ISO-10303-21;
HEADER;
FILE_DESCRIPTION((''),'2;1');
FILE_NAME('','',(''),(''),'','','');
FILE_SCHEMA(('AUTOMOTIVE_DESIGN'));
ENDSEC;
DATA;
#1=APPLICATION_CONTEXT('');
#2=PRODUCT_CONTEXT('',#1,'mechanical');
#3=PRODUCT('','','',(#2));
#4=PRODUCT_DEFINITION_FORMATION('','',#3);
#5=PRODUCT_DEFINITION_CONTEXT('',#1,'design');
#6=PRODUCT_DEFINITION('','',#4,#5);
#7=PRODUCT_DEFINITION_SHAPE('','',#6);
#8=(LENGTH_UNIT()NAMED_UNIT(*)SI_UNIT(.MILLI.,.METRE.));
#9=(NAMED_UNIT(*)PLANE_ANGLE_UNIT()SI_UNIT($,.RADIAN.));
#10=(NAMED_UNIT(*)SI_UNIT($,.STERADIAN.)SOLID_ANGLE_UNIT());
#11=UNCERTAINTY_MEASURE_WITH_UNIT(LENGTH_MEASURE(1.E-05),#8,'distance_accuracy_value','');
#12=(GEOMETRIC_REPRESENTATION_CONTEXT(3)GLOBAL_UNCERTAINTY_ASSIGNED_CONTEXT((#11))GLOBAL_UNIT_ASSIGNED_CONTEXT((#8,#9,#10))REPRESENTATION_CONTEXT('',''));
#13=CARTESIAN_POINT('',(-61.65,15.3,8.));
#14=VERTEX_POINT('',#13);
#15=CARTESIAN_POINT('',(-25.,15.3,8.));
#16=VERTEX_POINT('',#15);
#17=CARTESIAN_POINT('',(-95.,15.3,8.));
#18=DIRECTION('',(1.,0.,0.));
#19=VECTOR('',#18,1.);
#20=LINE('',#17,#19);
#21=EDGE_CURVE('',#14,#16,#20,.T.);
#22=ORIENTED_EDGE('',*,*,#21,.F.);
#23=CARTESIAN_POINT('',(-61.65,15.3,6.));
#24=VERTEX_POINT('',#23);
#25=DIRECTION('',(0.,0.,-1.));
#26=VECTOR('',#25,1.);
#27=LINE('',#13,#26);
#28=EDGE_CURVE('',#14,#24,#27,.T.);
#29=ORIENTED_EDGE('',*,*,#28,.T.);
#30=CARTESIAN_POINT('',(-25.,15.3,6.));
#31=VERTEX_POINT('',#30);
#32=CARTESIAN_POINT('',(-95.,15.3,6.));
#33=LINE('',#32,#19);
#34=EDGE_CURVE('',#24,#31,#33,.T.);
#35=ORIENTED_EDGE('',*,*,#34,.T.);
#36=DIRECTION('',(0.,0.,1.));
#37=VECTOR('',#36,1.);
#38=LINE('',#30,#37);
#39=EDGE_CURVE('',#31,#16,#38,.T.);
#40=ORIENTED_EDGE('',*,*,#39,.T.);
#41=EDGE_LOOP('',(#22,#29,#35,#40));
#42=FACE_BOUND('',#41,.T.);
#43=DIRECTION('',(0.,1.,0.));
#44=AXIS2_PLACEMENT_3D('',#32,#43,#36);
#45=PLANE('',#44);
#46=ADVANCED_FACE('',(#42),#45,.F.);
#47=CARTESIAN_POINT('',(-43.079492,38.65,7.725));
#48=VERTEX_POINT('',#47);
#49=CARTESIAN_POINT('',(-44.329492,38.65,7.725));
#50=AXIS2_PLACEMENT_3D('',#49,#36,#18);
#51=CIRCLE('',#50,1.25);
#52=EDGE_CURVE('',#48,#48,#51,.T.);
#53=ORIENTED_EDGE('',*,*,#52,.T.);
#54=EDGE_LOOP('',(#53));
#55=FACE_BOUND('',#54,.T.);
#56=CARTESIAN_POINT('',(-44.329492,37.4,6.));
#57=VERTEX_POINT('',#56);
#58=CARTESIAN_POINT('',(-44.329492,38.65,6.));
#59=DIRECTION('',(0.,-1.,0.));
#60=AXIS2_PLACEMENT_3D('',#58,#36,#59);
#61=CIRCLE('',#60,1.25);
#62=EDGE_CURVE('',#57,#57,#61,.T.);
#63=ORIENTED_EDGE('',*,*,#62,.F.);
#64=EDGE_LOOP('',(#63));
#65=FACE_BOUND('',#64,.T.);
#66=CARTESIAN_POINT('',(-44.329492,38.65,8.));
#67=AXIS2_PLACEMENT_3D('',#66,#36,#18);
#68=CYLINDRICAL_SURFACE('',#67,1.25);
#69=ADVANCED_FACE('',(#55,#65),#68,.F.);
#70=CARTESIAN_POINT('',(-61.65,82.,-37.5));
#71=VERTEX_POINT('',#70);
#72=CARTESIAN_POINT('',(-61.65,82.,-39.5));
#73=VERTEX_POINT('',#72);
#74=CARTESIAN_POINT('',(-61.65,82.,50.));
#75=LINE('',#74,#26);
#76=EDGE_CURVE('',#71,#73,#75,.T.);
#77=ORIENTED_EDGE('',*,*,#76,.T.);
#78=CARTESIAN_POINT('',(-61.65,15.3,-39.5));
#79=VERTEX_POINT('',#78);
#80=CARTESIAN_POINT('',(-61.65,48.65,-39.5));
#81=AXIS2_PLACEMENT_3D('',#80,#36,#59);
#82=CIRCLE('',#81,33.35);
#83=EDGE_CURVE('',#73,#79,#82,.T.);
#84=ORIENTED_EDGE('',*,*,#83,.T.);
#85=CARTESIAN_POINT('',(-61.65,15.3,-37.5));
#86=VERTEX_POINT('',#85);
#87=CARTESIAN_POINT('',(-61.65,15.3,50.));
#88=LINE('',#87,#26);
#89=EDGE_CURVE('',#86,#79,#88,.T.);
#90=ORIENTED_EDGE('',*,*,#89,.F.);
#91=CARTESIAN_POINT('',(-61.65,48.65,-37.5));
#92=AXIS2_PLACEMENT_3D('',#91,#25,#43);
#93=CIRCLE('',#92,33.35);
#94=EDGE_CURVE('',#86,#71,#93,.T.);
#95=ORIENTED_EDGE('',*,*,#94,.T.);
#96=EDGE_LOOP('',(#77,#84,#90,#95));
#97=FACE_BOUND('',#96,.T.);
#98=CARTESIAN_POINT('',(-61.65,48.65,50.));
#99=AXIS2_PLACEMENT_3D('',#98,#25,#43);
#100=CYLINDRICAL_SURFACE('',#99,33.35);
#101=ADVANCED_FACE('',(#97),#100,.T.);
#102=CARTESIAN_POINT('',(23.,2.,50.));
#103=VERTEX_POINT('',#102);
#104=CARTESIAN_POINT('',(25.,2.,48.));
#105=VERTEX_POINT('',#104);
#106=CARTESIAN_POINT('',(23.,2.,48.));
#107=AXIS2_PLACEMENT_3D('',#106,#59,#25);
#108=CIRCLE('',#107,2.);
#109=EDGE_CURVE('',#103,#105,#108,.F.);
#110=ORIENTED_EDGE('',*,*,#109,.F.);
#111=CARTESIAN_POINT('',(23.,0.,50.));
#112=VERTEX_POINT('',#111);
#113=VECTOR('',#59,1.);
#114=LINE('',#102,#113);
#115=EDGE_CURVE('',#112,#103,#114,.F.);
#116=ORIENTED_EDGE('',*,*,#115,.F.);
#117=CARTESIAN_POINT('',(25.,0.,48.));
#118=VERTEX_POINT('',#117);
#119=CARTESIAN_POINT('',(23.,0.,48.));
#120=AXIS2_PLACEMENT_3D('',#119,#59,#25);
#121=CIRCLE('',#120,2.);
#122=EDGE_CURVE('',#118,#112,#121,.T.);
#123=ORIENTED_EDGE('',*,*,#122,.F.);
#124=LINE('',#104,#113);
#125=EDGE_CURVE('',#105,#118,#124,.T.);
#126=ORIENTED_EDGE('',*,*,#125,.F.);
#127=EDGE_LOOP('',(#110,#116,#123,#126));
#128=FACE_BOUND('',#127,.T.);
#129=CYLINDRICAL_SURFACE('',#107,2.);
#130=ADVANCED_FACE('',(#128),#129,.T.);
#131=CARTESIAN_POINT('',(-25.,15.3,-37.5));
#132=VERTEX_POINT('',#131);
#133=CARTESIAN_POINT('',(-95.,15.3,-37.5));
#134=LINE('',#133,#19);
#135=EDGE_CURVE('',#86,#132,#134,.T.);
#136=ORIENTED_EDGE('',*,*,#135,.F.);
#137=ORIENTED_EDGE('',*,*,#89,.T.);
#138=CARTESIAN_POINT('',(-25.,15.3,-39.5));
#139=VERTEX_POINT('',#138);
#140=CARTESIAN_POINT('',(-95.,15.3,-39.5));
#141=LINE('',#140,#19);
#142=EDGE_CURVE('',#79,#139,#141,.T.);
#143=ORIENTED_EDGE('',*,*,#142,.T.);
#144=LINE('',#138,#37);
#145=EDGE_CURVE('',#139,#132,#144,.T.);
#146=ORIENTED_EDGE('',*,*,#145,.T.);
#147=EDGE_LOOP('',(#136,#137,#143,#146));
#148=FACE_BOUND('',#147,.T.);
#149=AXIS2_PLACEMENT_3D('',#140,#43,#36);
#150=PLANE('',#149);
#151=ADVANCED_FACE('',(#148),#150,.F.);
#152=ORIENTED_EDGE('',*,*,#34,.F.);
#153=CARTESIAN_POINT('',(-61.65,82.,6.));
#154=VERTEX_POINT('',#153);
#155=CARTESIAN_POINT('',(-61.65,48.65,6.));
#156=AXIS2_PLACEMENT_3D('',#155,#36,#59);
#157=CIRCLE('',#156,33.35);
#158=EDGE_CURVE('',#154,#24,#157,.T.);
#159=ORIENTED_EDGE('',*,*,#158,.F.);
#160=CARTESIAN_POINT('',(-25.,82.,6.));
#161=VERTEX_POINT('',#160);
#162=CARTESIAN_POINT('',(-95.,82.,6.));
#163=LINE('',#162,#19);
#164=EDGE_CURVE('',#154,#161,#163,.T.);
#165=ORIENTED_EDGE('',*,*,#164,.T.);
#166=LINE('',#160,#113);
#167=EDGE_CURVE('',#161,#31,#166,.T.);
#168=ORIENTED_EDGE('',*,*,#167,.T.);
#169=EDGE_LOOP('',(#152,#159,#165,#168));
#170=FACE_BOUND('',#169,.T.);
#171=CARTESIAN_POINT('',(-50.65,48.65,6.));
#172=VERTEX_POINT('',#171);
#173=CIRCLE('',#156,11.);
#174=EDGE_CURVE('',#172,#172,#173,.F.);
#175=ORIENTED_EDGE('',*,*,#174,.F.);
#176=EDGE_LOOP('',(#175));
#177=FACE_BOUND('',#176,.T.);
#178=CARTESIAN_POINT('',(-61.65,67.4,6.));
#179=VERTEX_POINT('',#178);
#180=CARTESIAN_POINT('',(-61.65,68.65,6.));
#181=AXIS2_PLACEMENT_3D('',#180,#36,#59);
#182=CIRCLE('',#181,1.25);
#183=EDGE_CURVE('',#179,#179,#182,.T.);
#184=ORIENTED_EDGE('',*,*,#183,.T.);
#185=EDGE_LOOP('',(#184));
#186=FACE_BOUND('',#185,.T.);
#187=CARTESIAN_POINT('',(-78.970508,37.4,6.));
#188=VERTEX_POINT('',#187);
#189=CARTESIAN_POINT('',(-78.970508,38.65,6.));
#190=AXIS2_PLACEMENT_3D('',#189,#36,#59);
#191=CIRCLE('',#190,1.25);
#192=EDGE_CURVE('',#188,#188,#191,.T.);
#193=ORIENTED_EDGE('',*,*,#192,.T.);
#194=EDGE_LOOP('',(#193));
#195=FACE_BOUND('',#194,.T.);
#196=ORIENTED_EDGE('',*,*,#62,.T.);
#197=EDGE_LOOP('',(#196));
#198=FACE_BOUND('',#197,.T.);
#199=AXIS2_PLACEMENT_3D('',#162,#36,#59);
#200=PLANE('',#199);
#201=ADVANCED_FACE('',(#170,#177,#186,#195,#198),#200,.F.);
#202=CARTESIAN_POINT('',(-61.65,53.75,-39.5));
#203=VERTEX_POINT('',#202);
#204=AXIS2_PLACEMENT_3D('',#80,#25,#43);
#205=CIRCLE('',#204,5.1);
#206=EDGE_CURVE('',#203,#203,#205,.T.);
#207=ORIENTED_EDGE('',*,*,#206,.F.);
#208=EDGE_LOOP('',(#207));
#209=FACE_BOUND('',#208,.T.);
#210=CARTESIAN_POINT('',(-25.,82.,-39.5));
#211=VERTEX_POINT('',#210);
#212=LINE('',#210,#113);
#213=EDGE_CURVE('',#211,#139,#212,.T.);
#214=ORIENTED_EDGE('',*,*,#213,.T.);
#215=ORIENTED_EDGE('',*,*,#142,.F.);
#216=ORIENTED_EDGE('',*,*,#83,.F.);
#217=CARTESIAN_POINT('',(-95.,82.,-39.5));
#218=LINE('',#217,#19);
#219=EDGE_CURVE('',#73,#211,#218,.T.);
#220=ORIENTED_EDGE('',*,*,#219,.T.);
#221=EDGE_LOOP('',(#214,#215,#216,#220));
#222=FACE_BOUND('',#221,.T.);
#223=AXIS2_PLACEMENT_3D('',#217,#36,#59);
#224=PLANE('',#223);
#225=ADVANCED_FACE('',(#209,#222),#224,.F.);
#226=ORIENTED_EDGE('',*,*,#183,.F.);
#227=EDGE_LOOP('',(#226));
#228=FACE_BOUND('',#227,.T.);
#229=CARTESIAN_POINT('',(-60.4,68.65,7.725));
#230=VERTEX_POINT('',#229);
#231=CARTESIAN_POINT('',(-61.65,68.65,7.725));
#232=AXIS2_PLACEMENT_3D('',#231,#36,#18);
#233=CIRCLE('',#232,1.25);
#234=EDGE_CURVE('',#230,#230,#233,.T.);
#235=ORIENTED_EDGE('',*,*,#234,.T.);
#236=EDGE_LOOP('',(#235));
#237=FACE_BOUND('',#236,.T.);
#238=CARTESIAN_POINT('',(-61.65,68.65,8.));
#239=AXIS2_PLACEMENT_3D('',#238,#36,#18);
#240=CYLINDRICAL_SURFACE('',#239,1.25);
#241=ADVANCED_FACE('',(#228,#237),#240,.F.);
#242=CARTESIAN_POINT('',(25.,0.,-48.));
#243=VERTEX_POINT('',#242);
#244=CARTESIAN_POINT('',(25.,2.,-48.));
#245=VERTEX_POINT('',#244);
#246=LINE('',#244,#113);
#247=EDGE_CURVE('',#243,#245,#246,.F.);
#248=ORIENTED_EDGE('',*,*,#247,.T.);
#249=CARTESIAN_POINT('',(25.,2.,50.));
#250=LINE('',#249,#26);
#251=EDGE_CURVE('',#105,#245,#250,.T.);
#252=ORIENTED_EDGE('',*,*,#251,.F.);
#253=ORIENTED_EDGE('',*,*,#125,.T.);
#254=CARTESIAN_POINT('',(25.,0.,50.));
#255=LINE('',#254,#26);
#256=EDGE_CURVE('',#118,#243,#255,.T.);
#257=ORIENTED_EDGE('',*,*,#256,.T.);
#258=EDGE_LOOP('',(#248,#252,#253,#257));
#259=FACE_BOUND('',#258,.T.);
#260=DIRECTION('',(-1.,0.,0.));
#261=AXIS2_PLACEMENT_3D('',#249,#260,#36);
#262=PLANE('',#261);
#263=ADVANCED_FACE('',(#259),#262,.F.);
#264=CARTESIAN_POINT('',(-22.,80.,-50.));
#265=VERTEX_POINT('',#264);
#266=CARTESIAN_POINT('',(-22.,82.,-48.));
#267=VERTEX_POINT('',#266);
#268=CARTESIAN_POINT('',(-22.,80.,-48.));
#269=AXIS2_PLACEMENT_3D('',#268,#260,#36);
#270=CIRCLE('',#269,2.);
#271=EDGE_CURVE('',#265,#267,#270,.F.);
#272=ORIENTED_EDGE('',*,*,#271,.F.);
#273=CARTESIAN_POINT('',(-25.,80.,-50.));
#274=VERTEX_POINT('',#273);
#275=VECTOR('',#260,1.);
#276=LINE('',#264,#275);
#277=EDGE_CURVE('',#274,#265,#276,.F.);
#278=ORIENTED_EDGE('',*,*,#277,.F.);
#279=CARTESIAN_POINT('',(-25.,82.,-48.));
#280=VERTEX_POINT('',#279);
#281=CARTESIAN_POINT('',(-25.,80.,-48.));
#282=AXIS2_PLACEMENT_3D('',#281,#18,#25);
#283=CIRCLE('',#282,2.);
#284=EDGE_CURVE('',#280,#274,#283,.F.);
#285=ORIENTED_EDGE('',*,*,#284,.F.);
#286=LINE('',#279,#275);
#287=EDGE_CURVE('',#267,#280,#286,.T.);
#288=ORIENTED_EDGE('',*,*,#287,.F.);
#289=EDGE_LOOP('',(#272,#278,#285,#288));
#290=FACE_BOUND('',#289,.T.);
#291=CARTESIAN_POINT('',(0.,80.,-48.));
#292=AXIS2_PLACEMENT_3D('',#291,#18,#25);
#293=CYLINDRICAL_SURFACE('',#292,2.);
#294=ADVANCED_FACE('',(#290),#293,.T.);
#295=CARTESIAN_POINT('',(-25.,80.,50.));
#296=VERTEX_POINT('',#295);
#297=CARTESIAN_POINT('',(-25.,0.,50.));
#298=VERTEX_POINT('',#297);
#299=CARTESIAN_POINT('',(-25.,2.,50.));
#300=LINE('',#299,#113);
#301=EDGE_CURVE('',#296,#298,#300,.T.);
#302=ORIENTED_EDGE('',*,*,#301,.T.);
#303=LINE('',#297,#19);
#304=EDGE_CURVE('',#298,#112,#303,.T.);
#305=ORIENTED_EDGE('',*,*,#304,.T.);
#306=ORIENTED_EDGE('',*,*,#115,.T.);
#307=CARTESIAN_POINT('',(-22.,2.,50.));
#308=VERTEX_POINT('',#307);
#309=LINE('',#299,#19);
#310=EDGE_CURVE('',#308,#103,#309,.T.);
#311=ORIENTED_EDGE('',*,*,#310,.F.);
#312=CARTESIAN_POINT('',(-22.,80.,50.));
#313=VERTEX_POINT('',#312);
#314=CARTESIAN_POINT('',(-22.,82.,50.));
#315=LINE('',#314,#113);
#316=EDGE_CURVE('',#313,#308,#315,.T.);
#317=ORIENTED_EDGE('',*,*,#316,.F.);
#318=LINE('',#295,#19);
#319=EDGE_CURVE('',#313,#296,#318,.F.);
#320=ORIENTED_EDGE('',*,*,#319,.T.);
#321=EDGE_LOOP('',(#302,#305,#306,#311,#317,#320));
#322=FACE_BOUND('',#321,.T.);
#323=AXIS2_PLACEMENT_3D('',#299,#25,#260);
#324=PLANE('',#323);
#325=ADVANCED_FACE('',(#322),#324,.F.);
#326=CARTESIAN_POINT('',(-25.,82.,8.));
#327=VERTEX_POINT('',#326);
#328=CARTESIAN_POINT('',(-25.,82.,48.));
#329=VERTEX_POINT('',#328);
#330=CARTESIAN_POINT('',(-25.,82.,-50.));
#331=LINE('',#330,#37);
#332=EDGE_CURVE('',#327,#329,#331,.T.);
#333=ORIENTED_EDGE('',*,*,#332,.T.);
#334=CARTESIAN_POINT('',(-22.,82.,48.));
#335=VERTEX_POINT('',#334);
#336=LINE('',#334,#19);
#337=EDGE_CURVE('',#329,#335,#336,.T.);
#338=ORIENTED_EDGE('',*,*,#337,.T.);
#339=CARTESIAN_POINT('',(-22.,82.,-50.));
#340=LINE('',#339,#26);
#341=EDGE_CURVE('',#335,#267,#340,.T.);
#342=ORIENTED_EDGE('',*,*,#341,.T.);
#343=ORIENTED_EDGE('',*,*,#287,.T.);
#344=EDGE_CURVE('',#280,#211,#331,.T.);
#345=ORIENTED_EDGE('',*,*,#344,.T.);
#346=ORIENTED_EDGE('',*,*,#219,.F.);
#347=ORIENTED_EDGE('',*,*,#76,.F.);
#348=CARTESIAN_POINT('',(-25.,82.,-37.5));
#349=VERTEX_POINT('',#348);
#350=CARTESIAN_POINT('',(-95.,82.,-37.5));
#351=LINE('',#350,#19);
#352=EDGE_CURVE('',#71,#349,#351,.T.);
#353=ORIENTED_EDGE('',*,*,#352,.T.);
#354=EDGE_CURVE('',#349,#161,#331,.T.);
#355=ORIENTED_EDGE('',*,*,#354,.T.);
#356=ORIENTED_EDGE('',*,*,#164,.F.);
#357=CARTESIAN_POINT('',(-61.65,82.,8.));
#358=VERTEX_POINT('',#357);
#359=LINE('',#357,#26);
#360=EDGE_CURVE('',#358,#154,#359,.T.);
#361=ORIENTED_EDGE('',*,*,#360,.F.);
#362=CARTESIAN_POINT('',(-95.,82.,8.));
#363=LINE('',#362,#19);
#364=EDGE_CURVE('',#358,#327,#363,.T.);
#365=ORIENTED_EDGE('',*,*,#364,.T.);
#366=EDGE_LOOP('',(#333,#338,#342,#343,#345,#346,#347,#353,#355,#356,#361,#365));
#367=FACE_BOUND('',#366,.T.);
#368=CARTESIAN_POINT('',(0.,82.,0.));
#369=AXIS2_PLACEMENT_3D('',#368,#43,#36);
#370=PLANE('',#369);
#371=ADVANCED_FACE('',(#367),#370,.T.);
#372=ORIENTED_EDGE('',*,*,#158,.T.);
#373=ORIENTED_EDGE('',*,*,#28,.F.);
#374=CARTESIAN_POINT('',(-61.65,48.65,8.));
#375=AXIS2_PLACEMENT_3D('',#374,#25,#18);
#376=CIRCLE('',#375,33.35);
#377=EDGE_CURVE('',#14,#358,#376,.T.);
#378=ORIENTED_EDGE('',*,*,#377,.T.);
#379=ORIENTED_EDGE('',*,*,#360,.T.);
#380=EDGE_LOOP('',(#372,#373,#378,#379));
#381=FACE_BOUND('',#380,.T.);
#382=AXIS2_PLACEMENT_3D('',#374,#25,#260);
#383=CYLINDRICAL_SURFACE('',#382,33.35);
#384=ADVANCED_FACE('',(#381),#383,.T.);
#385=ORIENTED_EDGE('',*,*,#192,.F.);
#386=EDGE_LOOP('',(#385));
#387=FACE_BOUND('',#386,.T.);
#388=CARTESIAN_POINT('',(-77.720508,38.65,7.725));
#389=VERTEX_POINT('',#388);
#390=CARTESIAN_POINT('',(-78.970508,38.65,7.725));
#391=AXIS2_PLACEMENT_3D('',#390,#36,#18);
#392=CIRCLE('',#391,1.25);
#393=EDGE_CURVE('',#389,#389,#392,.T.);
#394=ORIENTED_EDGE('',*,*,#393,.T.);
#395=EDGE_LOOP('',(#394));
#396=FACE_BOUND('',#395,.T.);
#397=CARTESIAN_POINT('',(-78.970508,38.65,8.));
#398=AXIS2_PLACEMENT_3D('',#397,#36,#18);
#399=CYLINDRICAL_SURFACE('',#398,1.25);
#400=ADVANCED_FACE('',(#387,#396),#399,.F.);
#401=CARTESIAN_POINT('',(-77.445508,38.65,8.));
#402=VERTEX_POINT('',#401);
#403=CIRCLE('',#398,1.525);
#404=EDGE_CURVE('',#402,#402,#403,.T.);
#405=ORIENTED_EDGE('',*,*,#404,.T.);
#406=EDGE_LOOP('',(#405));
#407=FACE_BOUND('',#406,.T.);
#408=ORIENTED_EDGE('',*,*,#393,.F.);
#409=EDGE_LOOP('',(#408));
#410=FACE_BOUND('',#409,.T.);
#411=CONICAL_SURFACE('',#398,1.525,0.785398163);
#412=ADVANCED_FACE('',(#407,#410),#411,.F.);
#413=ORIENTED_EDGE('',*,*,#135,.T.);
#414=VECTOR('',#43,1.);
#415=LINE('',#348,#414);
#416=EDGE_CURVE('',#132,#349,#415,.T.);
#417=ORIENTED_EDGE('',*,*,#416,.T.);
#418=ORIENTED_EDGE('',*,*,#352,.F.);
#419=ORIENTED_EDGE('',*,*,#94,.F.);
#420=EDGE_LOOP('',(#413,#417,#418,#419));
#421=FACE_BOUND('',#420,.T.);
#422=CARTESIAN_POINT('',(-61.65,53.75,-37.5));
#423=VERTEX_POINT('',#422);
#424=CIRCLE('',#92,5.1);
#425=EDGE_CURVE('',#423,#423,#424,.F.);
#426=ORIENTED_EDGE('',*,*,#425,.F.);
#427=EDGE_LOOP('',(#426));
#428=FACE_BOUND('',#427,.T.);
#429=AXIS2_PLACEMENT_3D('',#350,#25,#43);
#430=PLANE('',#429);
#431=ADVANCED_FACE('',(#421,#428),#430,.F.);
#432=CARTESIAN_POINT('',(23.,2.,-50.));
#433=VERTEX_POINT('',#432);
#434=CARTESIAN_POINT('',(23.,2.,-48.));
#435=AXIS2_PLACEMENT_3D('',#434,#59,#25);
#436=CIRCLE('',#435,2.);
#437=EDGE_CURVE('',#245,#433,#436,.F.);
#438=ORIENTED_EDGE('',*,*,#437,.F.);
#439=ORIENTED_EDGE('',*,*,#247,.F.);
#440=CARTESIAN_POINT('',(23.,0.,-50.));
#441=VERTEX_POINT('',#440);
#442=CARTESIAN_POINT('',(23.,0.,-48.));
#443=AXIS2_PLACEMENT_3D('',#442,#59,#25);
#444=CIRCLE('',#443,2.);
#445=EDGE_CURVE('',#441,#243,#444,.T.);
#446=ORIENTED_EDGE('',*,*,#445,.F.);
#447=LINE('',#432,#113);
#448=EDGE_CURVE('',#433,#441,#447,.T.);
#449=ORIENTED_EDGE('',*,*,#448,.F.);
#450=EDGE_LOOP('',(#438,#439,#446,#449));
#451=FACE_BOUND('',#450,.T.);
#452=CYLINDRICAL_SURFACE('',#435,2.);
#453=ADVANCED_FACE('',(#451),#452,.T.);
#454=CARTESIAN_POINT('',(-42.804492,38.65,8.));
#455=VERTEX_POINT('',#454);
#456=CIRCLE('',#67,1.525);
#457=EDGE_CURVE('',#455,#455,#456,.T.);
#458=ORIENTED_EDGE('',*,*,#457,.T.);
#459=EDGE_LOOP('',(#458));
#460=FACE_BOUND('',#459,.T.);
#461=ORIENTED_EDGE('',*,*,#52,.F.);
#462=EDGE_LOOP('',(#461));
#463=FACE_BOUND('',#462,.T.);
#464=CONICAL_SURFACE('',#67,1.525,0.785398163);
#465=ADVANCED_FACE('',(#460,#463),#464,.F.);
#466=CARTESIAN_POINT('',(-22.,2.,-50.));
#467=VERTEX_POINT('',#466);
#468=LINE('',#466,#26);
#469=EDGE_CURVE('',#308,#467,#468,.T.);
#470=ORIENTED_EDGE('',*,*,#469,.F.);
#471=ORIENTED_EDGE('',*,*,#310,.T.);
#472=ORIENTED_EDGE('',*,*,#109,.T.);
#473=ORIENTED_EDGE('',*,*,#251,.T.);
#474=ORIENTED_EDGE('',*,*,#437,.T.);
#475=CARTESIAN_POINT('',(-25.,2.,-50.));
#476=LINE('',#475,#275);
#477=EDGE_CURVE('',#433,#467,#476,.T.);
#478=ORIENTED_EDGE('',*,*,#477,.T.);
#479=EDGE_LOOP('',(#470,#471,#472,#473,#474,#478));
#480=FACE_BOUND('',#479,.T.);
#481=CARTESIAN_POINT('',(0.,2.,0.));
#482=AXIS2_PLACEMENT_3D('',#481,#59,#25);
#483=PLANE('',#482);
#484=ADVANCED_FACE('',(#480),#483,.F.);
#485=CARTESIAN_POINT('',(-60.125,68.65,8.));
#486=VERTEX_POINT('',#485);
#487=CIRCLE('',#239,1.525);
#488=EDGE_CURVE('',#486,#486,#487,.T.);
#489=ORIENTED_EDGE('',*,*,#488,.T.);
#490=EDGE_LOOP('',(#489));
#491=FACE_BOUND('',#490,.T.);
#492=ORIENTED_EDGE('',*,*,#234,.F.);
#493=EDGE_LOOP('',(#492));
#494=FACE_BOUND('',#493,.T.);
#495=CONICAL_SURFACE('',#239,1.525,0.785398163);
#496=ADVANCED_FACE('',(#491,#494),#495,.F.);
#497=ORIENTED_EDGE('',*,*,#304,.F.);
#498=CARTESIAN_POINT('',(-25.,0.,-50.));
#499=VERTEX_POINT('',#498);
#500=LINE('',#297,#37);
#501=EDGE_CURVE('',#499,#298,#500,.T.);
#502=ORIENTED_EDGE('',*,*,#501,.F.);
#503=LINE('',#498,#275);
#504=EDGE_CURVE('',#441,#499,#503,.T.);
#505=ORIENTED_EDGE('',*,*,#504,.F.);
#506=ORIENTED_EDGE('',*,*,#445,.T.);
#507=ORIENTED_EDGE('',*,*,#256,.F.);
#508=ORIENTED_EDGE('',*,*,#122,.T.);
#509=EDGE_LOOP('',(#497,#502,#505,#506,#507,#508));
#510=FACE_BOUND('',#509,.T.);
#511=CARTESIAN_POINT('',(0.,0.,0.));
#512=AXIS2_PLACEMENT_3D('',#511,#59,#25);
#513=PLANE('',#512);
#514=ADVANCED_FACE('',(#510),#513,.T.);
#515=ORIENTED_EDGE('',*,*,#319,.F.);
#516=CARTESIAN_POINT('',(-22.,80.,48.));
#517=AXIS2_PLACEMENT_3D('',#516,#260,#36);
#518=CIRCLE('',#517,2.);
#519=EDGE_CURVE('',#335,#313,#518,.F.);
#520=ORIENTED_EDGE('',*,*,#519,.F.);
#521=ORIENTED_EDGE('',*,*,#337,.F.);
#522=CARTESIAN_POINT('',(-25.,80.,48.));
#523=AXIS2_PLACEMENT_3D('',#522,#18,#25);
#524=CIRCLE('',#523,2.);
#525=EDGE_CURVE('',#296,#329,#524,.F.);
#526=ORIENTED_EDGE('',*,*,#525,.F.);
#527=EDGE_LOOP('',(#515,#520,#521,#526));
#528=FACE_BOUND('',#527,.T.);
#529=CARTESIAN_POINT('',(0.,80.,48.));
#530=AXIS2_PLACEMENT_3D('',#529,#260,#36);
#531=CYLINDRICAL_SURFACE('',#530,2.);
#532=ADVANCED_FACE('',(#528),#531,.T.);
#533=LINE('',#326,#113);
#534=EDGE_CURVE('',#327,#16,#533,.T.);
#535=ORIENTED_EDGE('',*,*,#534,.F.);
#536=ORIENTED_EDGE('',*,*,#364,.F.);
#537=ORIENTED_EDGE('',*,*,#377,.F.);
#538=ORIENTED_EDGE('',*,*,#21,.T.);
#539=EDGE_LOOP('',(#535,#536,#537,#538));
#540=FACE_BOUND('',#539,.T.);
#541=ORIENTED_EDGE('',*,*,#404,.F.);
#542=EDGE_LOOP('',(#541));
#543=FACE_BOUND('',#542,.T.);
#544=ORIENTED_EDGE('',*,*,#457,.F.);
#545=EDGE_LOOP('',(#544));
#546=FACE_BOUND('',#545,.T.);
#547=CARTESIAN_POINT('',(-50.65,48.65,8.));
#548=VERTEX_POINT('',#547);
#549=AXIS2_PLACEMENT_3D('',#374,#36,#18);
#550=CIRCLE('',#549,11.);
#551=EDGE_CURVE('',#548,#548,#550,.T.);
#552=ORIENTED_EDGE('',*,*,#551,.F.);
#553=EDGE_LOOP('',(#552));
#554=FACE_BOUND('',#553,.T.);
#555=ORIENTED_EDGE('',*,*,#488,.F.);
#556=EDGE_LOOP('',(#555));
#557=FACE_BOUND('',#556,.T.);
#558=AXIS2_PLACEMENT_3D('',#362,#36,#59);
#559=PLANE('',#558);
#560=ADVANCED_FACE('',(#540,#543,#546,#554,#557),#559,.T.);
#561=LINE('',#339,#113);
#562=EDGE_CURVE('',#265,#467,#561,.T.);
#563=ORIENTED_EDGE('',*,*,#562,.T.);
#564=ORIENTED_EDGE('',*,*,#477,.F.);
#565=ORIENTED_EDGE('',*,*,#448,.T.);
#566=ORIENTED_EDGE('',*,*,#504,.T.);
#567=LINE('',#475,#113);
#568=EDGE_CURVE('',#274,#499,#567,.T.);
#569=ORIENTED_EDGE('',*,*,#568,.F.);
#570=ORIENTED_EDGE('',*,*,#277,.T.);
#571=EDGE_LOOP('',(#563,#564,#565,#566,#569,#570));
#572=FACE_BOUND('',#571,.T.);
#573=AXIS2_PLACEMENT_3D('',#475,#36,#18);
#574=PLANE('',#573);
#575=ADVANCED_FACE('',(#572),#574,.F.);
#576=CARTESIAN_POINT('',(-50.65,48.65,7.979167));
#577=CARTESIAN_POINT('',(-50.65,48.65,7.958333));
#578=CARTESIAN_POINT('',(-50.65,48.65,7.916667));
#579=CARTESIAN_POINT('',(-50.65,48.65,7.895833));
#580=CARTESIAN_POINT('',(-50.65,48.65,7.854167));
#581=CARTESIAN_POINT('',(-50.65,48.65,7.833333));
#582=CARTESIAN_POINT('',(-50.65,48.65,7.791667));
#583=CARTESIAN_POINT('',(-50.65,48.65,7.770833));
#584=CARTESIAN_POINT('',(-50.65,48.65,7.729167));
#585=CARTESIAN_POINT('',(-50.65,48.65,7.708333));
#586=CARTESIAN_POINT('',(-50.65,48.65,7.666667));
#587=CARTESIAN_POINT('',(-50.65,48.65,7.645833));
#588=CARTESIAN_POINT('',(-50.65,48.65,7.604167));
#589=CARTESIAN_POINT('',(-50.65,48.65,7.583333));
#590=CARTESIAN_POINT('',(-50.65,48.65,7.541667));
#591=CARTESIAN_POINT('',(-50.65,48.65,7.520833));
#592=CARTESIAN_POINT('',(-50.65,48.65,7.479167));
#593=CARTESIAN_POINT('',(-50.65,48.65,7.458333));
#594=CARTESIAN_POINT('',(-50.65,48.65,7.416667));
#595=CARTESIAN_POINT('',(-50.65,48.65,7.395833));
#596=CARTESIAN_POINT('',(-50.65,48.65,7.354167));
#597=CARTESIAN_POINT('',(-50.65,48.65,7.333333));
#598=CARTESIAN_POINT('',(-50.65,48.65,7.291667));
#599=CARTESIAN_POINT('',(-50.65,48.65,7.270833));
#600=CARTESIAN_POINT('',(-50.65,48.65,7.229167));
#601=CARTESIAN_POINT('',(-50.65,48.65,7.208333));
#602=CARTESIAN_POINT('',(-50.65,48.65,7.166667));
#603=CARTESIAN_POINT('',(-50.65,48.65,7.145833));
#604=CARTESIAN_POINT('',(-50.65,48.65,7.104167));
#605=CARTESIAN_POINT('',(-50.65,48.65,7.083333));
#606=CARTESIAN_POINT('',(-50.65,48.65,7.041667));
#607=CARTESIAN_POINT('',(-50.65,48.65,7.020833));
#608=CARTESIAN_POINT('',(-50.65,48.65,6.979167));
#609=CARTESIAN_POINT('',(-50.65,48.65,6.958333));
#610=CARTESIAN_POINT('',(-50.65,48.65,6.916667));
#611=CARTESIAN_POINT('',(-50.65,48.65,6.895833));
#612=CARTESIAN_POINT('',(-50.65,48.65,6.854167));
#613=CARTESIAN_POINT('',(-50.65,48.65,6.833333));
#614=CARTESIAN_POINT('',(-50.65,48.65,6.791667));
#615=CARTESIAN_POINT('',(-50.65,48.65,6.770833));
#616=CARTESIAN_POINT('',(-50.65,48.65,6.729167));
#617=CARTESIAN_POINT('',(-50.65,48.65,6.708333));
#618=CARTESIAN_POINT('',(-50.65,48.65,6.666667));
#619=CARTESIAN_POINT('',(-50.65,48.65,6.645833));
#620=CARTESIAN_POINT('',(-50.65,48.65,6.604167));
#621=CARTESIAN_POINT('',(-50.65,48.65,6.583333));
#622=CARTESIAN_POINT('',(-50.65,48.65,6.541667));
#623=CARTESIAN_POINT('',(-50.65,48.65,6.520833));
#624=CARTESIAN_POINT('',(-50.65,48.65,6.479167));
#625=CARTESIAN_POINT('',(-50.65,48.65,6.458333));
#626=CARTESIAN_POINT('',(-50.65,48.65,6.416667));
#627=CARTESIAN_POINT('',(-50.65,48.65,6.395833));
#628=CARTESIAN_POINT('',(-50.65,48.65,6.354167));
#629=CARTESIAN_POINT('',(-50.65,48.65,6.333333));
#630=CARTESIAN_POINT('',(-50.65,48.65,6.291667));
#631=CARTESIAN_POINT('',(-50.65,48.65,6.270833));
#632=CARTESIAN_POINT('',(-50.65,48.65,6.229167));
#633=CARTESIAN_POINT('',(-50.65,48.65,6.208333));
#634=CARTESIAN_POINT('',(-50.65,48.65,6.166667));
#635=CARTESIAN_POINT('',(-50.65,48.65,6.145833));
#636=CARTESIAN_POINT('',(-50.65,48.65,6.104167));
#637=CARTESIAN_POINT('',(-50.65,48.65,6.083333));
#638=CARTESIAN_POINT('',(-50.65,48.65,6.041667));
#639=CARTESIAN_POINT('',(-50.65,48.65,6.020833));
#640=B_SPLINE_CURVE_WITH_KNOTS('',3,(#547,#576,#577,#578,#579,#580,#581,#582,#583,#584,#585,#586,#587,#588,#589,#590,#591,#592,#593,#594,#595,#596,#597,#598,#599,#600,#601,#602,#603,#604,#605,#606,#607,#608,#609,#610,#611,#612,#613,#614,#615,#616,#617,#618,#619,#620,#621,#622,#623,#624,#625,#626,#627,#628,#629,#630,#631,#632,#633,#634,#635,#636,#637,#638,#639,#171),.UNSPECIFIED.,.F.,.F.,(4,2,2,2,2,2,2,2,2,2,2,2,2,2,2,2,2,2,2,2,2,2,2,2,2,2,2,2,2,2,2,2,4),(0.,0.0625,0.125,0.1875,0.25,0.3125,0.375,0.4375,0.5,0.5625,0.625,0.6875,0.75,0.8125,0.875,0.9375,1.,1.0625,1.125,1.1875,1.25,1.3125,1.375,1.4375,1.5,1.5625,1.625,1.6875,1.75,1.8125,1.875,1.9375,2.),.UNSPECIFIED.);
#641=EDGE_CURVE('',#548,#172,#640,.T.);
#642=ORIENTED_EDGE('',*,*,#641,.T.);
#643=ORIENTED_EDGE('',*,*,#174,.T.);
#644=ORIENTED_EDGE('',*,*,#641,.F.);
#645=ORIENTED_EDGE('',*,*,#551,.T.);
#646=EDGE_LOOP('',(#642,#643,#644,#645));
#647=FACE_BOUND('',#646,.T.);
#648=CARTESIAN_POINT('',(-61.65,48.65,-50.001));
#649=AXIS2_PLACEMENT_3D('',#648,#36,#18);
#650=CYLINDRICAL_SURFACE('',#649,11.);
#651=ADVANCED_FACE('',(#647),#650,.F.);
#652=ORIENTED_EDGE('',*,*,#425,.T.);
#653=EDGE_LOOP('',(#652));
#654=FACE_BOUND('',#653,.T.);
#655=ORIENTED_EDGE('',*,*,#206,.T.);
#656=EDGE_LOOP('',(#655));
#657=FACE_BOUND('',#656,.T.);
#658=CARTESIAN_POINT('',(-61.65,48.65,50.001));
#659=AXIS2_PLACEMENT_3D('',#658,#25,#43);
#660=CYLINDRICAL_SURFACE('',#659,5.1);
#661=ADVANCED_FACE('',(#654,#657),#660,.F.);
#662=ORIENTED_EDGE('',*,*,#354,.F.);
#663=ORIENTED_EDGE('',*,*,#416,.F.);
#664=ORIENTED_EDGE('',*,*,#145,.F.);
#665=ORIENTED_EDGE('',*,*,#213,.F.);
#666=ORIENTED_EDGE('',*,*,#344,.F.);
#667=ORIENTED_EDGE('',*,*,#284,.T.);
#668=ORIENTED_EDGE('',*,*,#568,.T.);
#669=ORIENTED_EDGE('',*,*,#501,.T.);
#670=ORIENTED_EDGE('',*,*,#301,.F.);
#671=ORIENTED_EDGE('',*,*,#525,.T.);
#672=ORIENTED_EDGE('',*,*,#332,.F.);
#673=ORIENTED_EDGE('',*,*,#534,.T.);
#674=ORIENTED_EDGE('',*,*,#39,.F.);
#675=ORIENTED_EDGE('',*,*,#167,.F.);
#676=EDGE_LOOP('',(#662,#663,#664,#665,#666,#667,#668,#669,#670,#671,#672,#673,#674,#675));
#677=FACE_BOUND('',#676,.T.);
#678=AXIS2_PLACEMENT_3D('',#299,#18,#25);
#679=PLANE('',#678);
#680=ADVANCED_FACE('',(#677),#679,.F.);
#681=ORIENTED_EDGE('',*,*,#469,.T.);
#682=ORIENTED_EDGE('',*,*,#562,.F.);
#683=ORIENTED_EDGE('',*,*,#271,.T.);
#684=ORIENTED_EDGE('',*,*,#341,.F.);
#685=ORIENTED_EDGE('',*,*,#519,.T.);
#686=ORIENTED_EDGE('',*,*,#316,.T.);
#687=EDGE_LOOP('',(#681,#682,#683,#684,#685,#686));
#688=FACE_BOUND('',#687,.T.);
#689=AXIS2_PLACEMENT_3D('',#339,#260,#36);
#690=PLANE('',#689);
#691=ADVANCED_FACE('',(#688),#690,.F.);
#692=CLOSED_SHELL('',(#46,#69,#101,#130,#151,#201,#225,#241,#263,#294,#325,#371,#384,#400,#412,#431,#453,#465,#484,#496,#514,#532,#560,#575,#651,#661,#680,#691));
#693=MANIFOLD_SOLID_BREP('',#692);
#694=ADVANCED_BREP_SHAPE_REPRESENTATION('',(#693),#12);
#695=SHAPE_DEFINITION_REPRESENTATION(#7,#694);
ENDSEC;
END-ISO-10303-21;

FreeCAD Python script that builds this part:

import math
import FreeCAD as App
import Part
import Sketcher

V = App.Vector
Q = App.Units.Quantity


def edges_at(feature, points):
    """Names of the edges that pass closest to the given points."""
    edges = feature.Shape.Edges
    near = lambda p: min(range(len(edges)), key=lambda i: edges[i].distToShape(Part.Vertex(*p))[0])
    return sorted({f"Edge{near(p) + 1}" for p in points})

doc = App.newDocument("Part")
body = doc.addObject("PartDesign::Body", "Body")

sketch1 = doc.addObject("Sketcher::SketchObject", "Sketch")
body.addObject(sketch1)
sketch1.AttachmentSupport = (doc.XZ_Plane, [""])
sketch1.MapMode = "FlatFace"
sketch1.addGeometry(Part.LineSegment(V(-25, -50, 0), V(-25, 50, 0)), False)
sketch1.addGeometry(Part.LineSegment(V(-25, 50, 0), V(25, 50, 0)), False)
sketch1.addGeometry(Part.LineSegment(V(25, 50, 0), V(25, -50, 0)), False)
sketch1.addGeometry(Part.LineSegment(V(25, -50, 0), V(-25, -50, 0)), False)
sketch1.addConstraint(Sketcher.Constraint("Coincident", 0, 2, 1, 1))
sketch1.addConstraint(Sketcher.Constraint("Coincident", 1, 2, 2, 1))
sketch1.addConstraint(Sketcher.Constraint("Coincident", 2, 2, 3, 1))
sketch1.addConstraint(Sketcher.Constraint("Coincident", 3, 2, 0, 1))
sketch1.addConstraint(Sketcher.Constraint("Vertical", 0))
sketch1.addConstraint(Sketcher.Constraint("Horizontal", 1))
sketch1.addConstraint(Sketcher.Constraint("Vertical", 2))
sketch1.addConstraint(Sketcher.Constraint("Horizontal", 3))
sketch1.addConstraint(Sketcher.Constraint("Symmetric", 0, 2, 2, 2, -1, 1))
sketch1.addConstraint(Sketcher.Constraint("DistanceX", 1, 1, 1, 2, Q("50 mm")))
sketch1.addConstraint(Sketcher.Constraint("DistanceY", 0, 1, 0, 2, Q("100 mm")))
pad1 = doc.addObject("PartDesign::Pad", "Pad")
body.addObject(pad1)
pad1.Profile = sketch1
pad1.Length = 2
pad1.Reversed = True

sketch2 = doc.addObject("Sketcher::SketchObject", "Sketch001")
body.addObject(sketch2)
sketch2.AttachmentSupport = (doc.XZ_Plane, [""])
sketch2.MapMode = "FlatFace"
sketch2.AttachmentOffset = App.Placement(V(0, 0, -2), App.Rotation())
sketch2.addGeometry(Part.LineSegment(V(-25, -50, 0), V(-25, 50, 0)), False)
sketch2.addGeometry(Part.LineSegment(V(-25, 50, 0), V(-22, 50, 0)), False)
sketch2.addGeometry(Part.LineSegment(V(-22, 50, 0), V(-22, -50, 0)), False)
sketch2.addGeometry(Part.LineSegment(V(-22, -50, 0), V(-25, -50, 0)), False)
sketch2.addConstraint(Sketcher.Constraint("Coincident", 0, 2, 1, 1))
sketch2.addConstraint(Sketcher.Constraint("Coincident", 1, 2, 2, 1))
sketch2.addConstraint(Sketcher.Constraint("Coincident", 2, 2, 3, 1))
sketch2.addConstraint(Sketcher.Constraint("Coincident", 3, 2, 0, 1))
sketch2.addConstraint(Sketcher.Constraint("Vertical", 0))
sketch2.addConstraint(Sketcher.Constraint("Horizontal", 1))
sketch2.addConstraint(Sketcher.Constraint("Vertical", 2))
sketch2.addConstraint(Sketcher.Constraint("Horizontal", 3))
sketch2.addConstraint(Sketcher.Constraint("DistanceX", 1, 1, 1, 2, Q("3 mm")))
sketch2.addConstraint(Sketcher.Constraint("DistanceY", 0, 1, 0, 2, Q("100 mm")))
sketch2.addConstraint(Sketcher.Constraint("DistanceX", 0, 2, -1, 1, Q("25 mm")))
sketch2.addConstraint(Sketcher.Constraint("DistanceY", -1, 1, 0, 2, Q("50 mm")))
pad2 = doc.addObject("PartDesign::Pad", "Pad001")
body.addObject(pad2)
pad2.Profile = sketch2
pad2.Length = 80
pad2.Reversed = True

sketch3 = doc.addObject("Sketcher::SketchObject", "Sketch002")
body.addObject(sketch3)
sketch3.AttachmentSupport = (doc.YZ_Plane, [""])
sketch3.MapMode = "FlatFace"
sketch3.AttachmentOffset = App.Placement(V(0, 0, -25), App.Rotation())
sketch3.addGeometry(Part.LineSegment(V(82, -50, 0), V(15.3, -50, 0)), False)
sketch3.addGeometry(Part.LineSegment(V(15.3, -50, 0), V(15.3, -48, 0)), False)
sketch3.addGeometry(Part.LineSegment(V(15.3, -48, 0), V(82, -48, 0)), False)
sketch3.addGeometry(Part.LineSegment(V(82, -48, 0), V(82, -50, 0)), False)
sketch3.addConstraint(Sketcher.Constraint("Coincident", 0, 2, 1, 1))
sketch3.addConstraint(Sketcher.Constraint("Coincident", 1, 2, 2, 1))
sketch3.addConstraint(Sketcher.Constraint("Coincident", 2, 2, 3, 1))
sketch3.addConstraint(Sketcher.Constraint("Coincident", 3, 2, 0, 1))
sketch3.addConstraint(Sketcher.Constraint("Horizontal", 0))
sketch3.addConstraint(Sketcher.Constraint("Vertical", 1))
sketch3.addConstraint(Sketcher.Constraint("Horizontal", 2))
sketch3.addConstraint(Sketcher.Constraint("Vertical", 3))
sketch3.addConstraint(Sketcher.Constraint("DistanceY", 1, 1, 1, 2, Q("2 mm")))
sketch3.addConstraint(Sketcher.Constraint("DistanceX", 0, 2, 0, 1, Q("66.7 mm")))
sketch3.addConstraint(Sketcher.Constraint("DistanceY", 0, 2, -1, 1, Q("50 mm")))
sketch3.addConstraint(Sketcher.Constraint("DistanceX", -1, 1, 2, 2, Q("82 mm")))
pad3 = doc.addObject("PartDesign::Pad", "Pad002")
body.addObject(pad3)
pad3.Profile = sketch3
pad3.Length = 70
pad3.Reversed = True

sketch4 = doc.addObject("Sketcher::SketchObject", "Sketch003")
body.addObject(sketch4)
sketch4.AttachmentSupport = (doc.XY_Plane, [""])
sketch4.MapMode = "FlatFace"
sketch4.AttachmentOffset = App.Placement(V(0, 0, -50), App.Rotation())
sketch4.addGeometry(Part.LineSegment(V(-95, 82, 0), V(-61.65, 82, 0)), False)
sketch4.addGeometry(Part.ArcOfCircle(Part.Circle(V(-61.65, 48.65, 0), V(0, 0, 1), 33.35), math.radians(90), math.radians(180)), False)
sketch4.addGeometry(Part.LineSegment(V(-95, 48.65, 0), V(-95, 82, 0)), False)
sketch4.addConstraint(Sketcher.Constraint("Tangent", 0, 2, 1, 1))
sketch4.addConstraint(Sketcher.Constraint("Tangent", 1, 2, 2, 1))
sketch4.addConstraint(Sketcher.Constraint("Coincident", 2, 2, 0, 1))
sketch4.addConstraint(Sketcher.Constraint("Horizontal", 0))
sketch4.addConstraint(Sketcher.Constraint("Vertical", 2))
sketch4.addConstraint(Sketcher.Constraint("Radius", 1, Q("33.35 mm")))
sketch4.addConstraint(Sketcher.Constraint("DistanceY", -1, 1, 0, 2, Q("82 mm")))
sketch4.addConstraint(Sketcher.Constraint("DistanceX", 1, 2, -1, 1, Q("95 mm")))
pocket1 = doc.addObject("PartDesign::Pocket", "Pocket")
body.addObject(pocket1)
pocket1.Profile = sketch4
pocket1.Type = "UpToFirst"
pocket1.Reversed = True

sketch5 = doc.addObject("Sketcher::SketchObject", "Sketch004")
body.addObject(sketch5)
sketch5.AttachmentSupport = (doc.XY_Plane, [""])
sketch5.MapMode = "FlatFace"
sketch5.AttachmentOffset = App.Placement(V(0, 0, -50), App.Rotation())
sketch5.addGeometry(Part.ArcOfCircle(Part.Circle(V(-61.65, 48.65, 0), V(0, 0, 1), 33.35), math.radians(180), math.radians(270)), False)
sketch5.addGeometry(Part.LineSegment(V(-61.65, 15.3, 0), V(-95, 15.3, 0)), False)
sketch5.addGeometry(Part.LineSegment(V(-95, 15.3, 0), V(-95, 48.65, 0)), False)
sketch5.addConstraint(Sketcher.Constraint("Tangent", 0, 2, 1, 1))
sketch5.addConstraint(Sketcher.Constraint("Coincident", 1, 2, 2, 1))
sketch5.addConstraint(Sketcher.Constraint("Tangent", 2, 2, 0, 1))
sketch5.addConstraint(Sketcher.Constraint("Horizontal", 1))
sketch5.addConstraint(Sketcher.Constraint("Vertical", 2))
sketch5.addConstraint(Sketcher.Constraint("Radius", 0, Q("33.35 mm")))
sketch5.addConstraint(Sketcher.Constraint("DistanceX", 1, 2, -1, 1, Q("95 mm")))
sketch5.addConstraint(Sketcher.Constraint("DistanceY", -1, 1, 0, 2, Q("15.3 mm")))
pocket2 = doc.addObject("PartDesign::Pocket", "Pocket001")
body.addObject(pocket2)
pocket2.Profile = sketch5
pocket2.Type = "UpToFirst"
pocket2.Reversed = True

sketch6 = doc.addObject("Sketcher::SketchObject", "Sketch005")
body.addObject(sketch6)
sketch6.AttachmentSupport = (doc.YZ_Plane, [""])
sketch6.MapMode = "FlatFace"
sketch6.AttachmentOffset = App.Placement(V(0, 0, -25), App.Rotation())
sketch6.addGeometry(Part.LineSegment(V(82, 6, 0), V(15.3, 6, 0)), False)
sketch6.addGeometry(Part.LineSegment(V(15.3, 6, 0), V(15.3, 8, 0)), False)
sketch6.addGeometry(Part.LineSegment(V(15.3, 8, 0), V(82, 8, 0)), False)
sketch6.addGeometry(Part.LineSegment(V(82, 8, 0), V(82, 6, 0)), False)
sketch6.addConstraint(Sketcher.Constraint("Coincident", 0, 2, 1, 1))
sketch6.addConstraint(Sketcher.Constraint("Coincident", 1, 2, 2, 1))
sketch6.addConstraint(Sketcher.Constraint("Coincident", 2, 2, 3, 1))
sketch6.addConstraint(Sketcher.Constraint("Coincident", 3, 2, 0, 1))
sketch6.addConstraint(Sketcher.Constraint("Horizontal", 0))
sketch6.addConstraint(Sketcher.Constraint("Vertical", 1))
sketch6.addConstraint(Sketcher.Constraint("Horizontal", 2))
sketch6.addConstraint(Sketcher.Constraint("Vertical", 3))
sketch6.addConstraint(Sketcher.Constraint("DistanceY", 1, 1, 1, 2, Q("2 mm")))
sketch6.addConstraint(Sketcher.Constraint("DistanceX", 0, 2, 0, 1, Q("66.7 mm")))
sketch6.addConstraint(Sketcher.Constraint("DistanceY", -1, 1, 0, 2, Q("6 mm")))
sketch6.addConstraint(Sketcher.Constraint("DistanceX", -1, 1, 2, 2, Q("82 mm")))
pad4 = doc.addObject("PartDesign::Pad", "Pad003")
body.addObject(pad4)
pad4.Profile = sketch6
pad4.Length = 70
pad4.Reversed = True

sketch7 = doc.addObject("Sketcher::SketchObject", "Sketch006")
body.addObject(sketch7)
sketch7.AttachmentSupport = (doc.XY_Plane, [""])
sketch7.MapMode = "FlatFace"
sketch7.AttachmentOffset = App.Placement(V(0, 0, 8), App.Rotation())
sketch7.addGeometry(Part.ArcOfCircle(Part.Circle(V(-61.65, 48.65, 0), V(0, 0, 1), 33.35), math.radians(90), math.radians(180)), False)
sketch7.addGeometry(Part.LineSegment(V(-61.65, 82, 0), V(-95, 82, 0)), False)
sketch7.addGeometry(Part.LineSegment(V(-95, 82, 0), V(-95, 48.65, 0)), False)
sketch7.addConstraint(Sketcher.Constraint("Tangent", 0, 1, 1, 1))
sketch7.addConstraint(Sketcher.Constraint("Coincident", 1, 2, 2, 1))
sketch7.addConstraint(Sketcher.Constraint("Tangent", 2, 2, 0, 2))
sketch7.addConstraint(Sketcher.Constraint("Horizontal", 1))
sketch7.addConstraint(Sketcher.Constraint("Vertical", 2))
sketch7.addConstraint(Sketcher.Constraint("Radius", 0, Q("33.35 mm")))
sketch7.addConstraint(Sketcher.Constraint("DistanceY", -1, 1, 0, 1, Q("82 mm")))
sketch7.addConstraint(Sketcher.Constraint("DistanceX", 1, 2, -1, 1, Q("95 mm")))
pocket3 = doc.addObject("PartDesign::Pocket", "Pocket002")
body.addObject(pocket3)
pocket3.Profile = sketch7
pocket3.Type = "UpToFirst"

sketch8 = doc.addObject("Sketcher::SketchObject", "Sketch007")
body.addObject(sketch8)
sketch8.AttachmentSupport = (doc.XY_Plane, [""])
sketch8.MapMode = "FlatFace"
sketch8.AttachmentOffset = App.Placement(V(0, 0, 8), App.Rotation())
sketch8.addGeometry(Part.ArcOfCircle(Part.Circle(V(-61.65, 48.65, 0), V(0, 0, 1), 33.35), math.radians(180), math.radians(270)), False)
sketch8.addGeometry(Part.LineSegment(V(-95, 48.65, 0), V(-95, 15.3, 0)), False)
sketch8.addGeometry(Part.LineSegment(V(-95, 15.3, 0), V(-61.65, 15.3, 0)), False)
sketch8.addConstraint(Sketcher.Constraint("Tangent", 0, 1, 1, 1))
sketch8.addConstraint(Sketcher.Constraint("Coincident", 1, 2, 2, 1))
sketch8.addConstraint(Sketcher.Constraint("Tangent", 2, 2, 0, 2))
sketch8.addConstraint(Sketcher.Constraint("Vertical", 1))
sketch8.addConstraint(Sketcher.Constraint("Horizontal", 2))
sketch8.addConstraint(Sketcher.Constraint("Radius", 0, Q("33.35 mm")))
sketch8.addConstraint(Sketcher.Constraint("DistanceX", 0, 1, -1, 1, Q("95 mm")))
sketch8.addConstraint(Sketcher.Constraint("DistanceY", -1, 1, 1, 2, Q("15.3 mm")))
pocket4 = doc.addObject("PartDesign::Pocket", "Pocket003")
body.addObject(pocket4)
pocket4.Profile = sketch8
pocket4.Type = "UpToFirst"

sketch9 = doc.addObject("Sketcher::SketchObject", "Sketch008")
body.addObject(sketch9)
sketch9.AttachmentSupport = (doc.XY_Plane, [""])
sketch9.MapMode = "FlatFace"
sketch9.AttachmentOffset = App.Placement(V(0, 0, 8), App.Rotation())
sketch9.addGeometry(Part.Circle(V(-78.970508, 38.65, 0), V(0, 0, 1), 1.25), False)
sketch9.addGeometry(Part.Circle(V(-61.65, 68.65, 0), V(0, 0, 1), 1.25), False)
sketch9.addGeometry(Part.Circle(V(-44.329492, 38.65, 0), V(0, 0, 1), 1.25), False)
sketch9.addConstraint(Sketcher.Constraint("Equal", 0, 1))
sketch9.addConstraint(Sketcher.Constraint("Equal", 1, 2))
sketch9.addConstraint(Sketcher.Constraint("Horizontal", 0, 3, 2, 3))
sketch9.addConstraint(Sketcher.Constraint("Diameter", 0, Q("2.5 mm")))
sketch9.addConstraint(Sketcher.Constraint("DistanceY", 0, 3, 1, 3, Q("30 mm")))
sketch9.addConstraint(Sketcher.Constraint("DistanceY", -1, 1, 0, 3, Q("38.65 mm")))
sketch9.addConstraint(Sketcher.Constraint("DistanceX", 1, 3, -1, 1, Q("61.65 mm")))
sketch9.addConstraint(Sketcher.Constraint("DistanceX", 0, 3, -1, 1, Q("78.970508 mm")))
sketch9.addConstraint(Sketcher.Constraint("DistanceX", 2, 3, -1, 1, Q("44.329492 mm")))
doc.recompute()
hole = doc.addObject("PartDesign::Hole", "Hole")
body.addObject(hole)
hole.Profile = sketch9
hole.ThreadType = "None"
hole.Diameter = 2.5
hole.DepthType = "Dimension"
hole.Depth = 2
hole.DrillPoint = "Flat"
hole.HoleCutType = "Countersink"
hole.HoleCutDiameter = 3.05
hole.HoleCutCountersinkAngle = 90
doc.recompute()

fillet = doc.addObject("PartDesign::Fillet", "Fillet")
body.addObject(fillet)
fillet.Base = (hole, edges_at(hole, [(-23.5, 82, 50), (25, 1, 50), (25, 1, -50)]))
fillet.Radius = 2

sketch10 = doc.addObject("Sketcher::SketchObject", "Sketch009")
body.addObject(sketch10)
sketch10.AttachmentSupport = (doc.XY_Plane, [""])
sketch10.MapMode = "FlatFace"
sketch10.AttachmentOffset = App.Placement(V(0, 0, 8), App.Rotation())
sketch10.addGeometry(Part.Circle(V(-61.65, 48.65, 0), V(0, 0, 1), 11), False)
sketch10.addConstraint(Sketcher.Constraint("Diameter", 0, Q("22 mm")))
sketch10.addConstraint(Sketcher.Constraint("DistanceX", 0, 3, -1, 1, Q("61.65 mm")))
sketch10.addConstraint(Sketcher.Constraint("DistanceY", -1, 1, 0, 3, Q("48.65 mm")))
pocket5 = doc.addObject("PartDesign::Pocket", "Pocket004")
body.addObject(pocket5)
pocket5.Profile = sketch10
pocket5.Type = "UpToFirst"

sketch11 = doc.addObject("Sketcher::SketchObject", "Sketch010")
body.addObject(sketch11)
sketch11.AttachmentSupport = (doc.XY_Plane, [""])
sketch11.MapMode = "FlatFace"
sketch11.AttachmentOffset = App.Placement(V(0, 0, -50), App.Rotation())
sketch11.addGeometry(Part.Circle(V(-61.65, 48.65, 0), V(0, 0, 1), 14.5), False)
sketch11.addConstraint(Sketcher.Constraint("Diameter", 0, Q("29 mm")))
sketch11.addConstraint(Sketcher.Constraint("DistanceX", 0, 3, -1, 1, Q("61.65 mm")))
sketch11.addConstraint(Sketcher.Constraint("DistanceY", -1, 1, 0, 3, Q("48.65 mm")))
pocket6 = doc.addObject("PartDesign::Pocket", "Pocket005")
body.addObject(pocket6)
pocket6.Profile = sketch11
pocket6.Type = "UpToFirst"
pocket6.Reversed = True

sketch12 = doc.addObject("Sketcher::SketchObject", "Sketch011")
body.addObject(sketch12)
sketch12.AttachmentSupport = (doc.YZ_Plane, [""])
sketch12.MapMode = "FlatFace"
sketch12.AttachmentOffset = App.Placement(V(0, 0, -25), App.Rotation())
sketch12.addGeometry(Part.LineSegment(V(82, -39.5, 0), V(15.3, -39.5, 0)), False)
sketch12.addGeometry(Part.LineSegment(V(15.3, -39.5, 0), V(15.3, -37.5, 0)), False)
sketch12.addGeometry(Part.LineSegment(V(15.3, -37.5, 0), V(82, -37.5, 0)), False)
sketch12.addGeometry(Part.LineSegment(V(82, -37.5, 0), V(82, -39.5, 0)), False)
sketch12.addConstraint(Sketcher.Constraint("Coincident", 0, 2, 1, 1))
sketch12.addConstraint(Sketcher.Constraint("Coincident", 1, 2, 2, 1))
sketch12.addConstraint(Sketcher.Constraint("Coincident", 2, 2, 3, 1))
sketch12.addConstraint(Sketcher.Constraint("Coincident", 3, 2, 0, 1))
sketch12.addConstraint(Sketcher.Constraint("Horizontal", 0))
sketch12.addConstraint(Sketcher.Constraint("Vertical", 1))
sketch12.addConstraint(Sketcher.Constraint("Horizontal", 2))
sketch12.addConstraint(Sketcher.Constraint("Vertical", 3))
sketch12.addConstraint(Sketcher.Constraint("DistanceY", 1, 1, 1, 2, Q("2 mm")))
sketch12.addConstraint(Sketcher.Constraint("DistanceX", 0, 2, 0, 1, Q("66.7 mm")))
sketch12.addConstraint(Sketcher.Constraint("DistanceX", -1, 1, 2, 2, Q("82 mm")))
sketch12.addConstraint(Sketcher.Constraint("DistanceY", 0, 2, -1, 1, Q("39.5 mm")))
pad5 = doc.addObject("PartDesign::Pad", "Pad004")
body.addObject(pad5)
pad5.Profile = sketch12
pad5.Length = 70
pad5.Reversed = True

sketch13 = doc.addObject("Sketcher::SketchObject", "Sketch012")
body.addObject(sketch13)
sketch13.AttachmentSupport = (doc.XY_Plane, [""])
sketch13.MapMode = "FlatFace"
sketch13.AttachmentOffset = App.Placement(V(0, 0, -39.5), App.Rotation())
sketch13.addGeometry(Part.Circle(V(-61.65, 48.65, 0), V(0, 0, 1), 5.1), False)
sketch13.addConstraint(Sketcher.Constraint("Diameter", 0, Q("10.2 mm")))
sketch13.addConstraint(Sketcher.Constraint("DistanceX", 0, 3, -1, 1, Q("61.65 mm")))
sketch13.addConstraint(Sketcher.Constraint("DistanceY", -1, 1, 0, 3, Q("48.65 mm")))
pocket7 = doc.addObject("PartDesign::Pocket", "Pocket006")
body.addObject(pocket7)
pocket7.Profile = sketch13
pocket7.Type = "UpToFirst"
pocket7.Reversed = True

sketch14 = doc.addObject("Sketcher::SketchObject", "Sketch013")
body.addObject(sketch14)
sketch14.AttachmentSupport = (doc.XY_Plane, [""])
sketch14.MapMode = "FlatFace"
sketch14.AttachmentOffset = App.Placement(V(0, 0, -39.5), App.Rotation())
sketch14.addGeometry(Part.LineSegment(V(-95, 15.3, 0), V(-95, 48.65, 0)), False)
sketch14.addGeometry(Part.ArcOfCircle(Part.Circle(V(-61.65, 48.65, 0), V(0, 0, 1), 33.35), math.radians(180), math.radians(270)), False)
sketch14.addGeometry(Part.LineSegment(V(-61.65, 15.3, 0), V(-95, 15.3, 0)), False)
sketch14.addGeometry(Part.LineSegment(V(-95, 48.65, 0), V(-95, 82, 0)), False)
sketch14.addGeometry(Part.LineSegment(V(-95, 82, 0), V(-61.65, 82, 0)), False)
sketch14.addGeometry(Part.ArcOfCircle(Part.Circle(V(-61.65, 48.65, 0), V(0, 0, 1), 33.35), math.radians(90), math.radians(180)), False)
sketch14.addConstraint(Sketcher.Constraint("Tangent", 0, 2, 1, 1))
sketch14.addConstraint(Sketcher.Constraint("Tangent", 1, 2, 2, 1))
sketch14.addConstraint(Sketcher.Constraint("Coincident", 2, 2, 0, 1))
sketch14.addConstraint(Sketcher.Constraint("Coincident", 3, 2, 4, 1))
sketch14.addConstraint(Sketcher.Constraint("Tangent", 4, 2, 5, 1))
sketch14.addConstraint(Sketcher.Constraint("Tangent", 5, 2, 3, 1))
sketch14.addConstraint(Sketcher.Constraint("Vertical", 0))
sketch14.addConstraint(Sketcher.Constraint("Horizontal", 2))
sketch14.addConstraint(Sketcher.Constraint("Vertical", 3))
sketch14.addConstraint(Sketcher.Constraint("Horizontal", 4))
sketch14.addConstraint(Sketcher.Constraint("Coincident", 5, 3, 1, 3))
sketch14.addConstraint(Sketcher.Constraint("Equal", 1, 5))
sketch14.addConstraint(Sketcher.Constraint("Radius", 1, Q("33.35 mm")))
sketch14.addConstraint(Sketcher.Constraint("DistanceX", 0, 2, -1, 1, Q("95 mm")))
sketch14.addConstraint(Sketcher.Constraint("DistanceY", -1, 1, 3, 2, Q("82 mm")))
pocket8 = doc.addObject("PartDesign::Pocket", "Pocket007")
body.addObject(pocket8)
pocket8.Profile = sketch14
pocket8.Type = "ThroughAll"
pocket8.Midplane = True

sketch15 = doc.addObject("Sketcher::SketchObject", "Sketch014")
body.addObject(sketch15)
sketch15.AttachmentSupport = (doc.YZ_Plane, [""])
sketch15.MapMode = "FlatFace"
sketch15.AttachmentOffset = App.Placement(V(0, 0, -25), App.Rotation())
sketch15.addGeometry(Part.LineSegment(V(82, -50, 0), V(15.3, -50, 0)), False)
sketch15.addGeometry(Part.LineSegment(V(15.3, -50, 0), V(15.3, -48, 0)), False)
sketch15.addGeometry(Part.LineSegment(V(15.3, -48, 0), V(82, -48, 0)), False)
sketch15.addGeometry(Part.LineSegment(V(82, -48, 0), V(82, -50, 0)), False)
sketch15.addConstraint(Sketcher.Constraint("Coincident", 0, 2, 1, 1))
sketch15.addConstraint(Sketcher.Constraint("Coincident", 1, 2, 2, 1))
sketch15.addConstraint(Sketcher.Constraint("Coincident", 2, 2, 3, 1))
sketch15.addConstraint(Sketcher.Constraint("Coincident", 3, 2, 0, 1))
sketch15.addConstraint(Sketcher.Constraint("Horizontal", 0))
sketch15.addConstraint(Sketcher.Constraint("Vertical", 1))
sketch15.addConstraint(Sketcher.Constraint("Horizontal", 2))
sketch15.addConstraint(Sketcher.Constraint("Vertical", 3))
sketch15.addConstraint(Sketcher.Constraint("DistanceY", 1, 1, 1, 2, Q("2 mm")))
sketch15.addConstraint(Sketcher.Constraint("DistanceX", 0, 2, 0, 1, Q("66.7 mm")))
sketch15.addConstraint(Sketcher.Constraint("DistanceY", 0, 2, -1, 1, Q("50 mm")))
sketch15.addConstraint(Sketcher.Constraint("DistanceX", -1, 1, 2, 2, Q("82 mm")))
pocket9 = doc.addObject("PartDesign::Pocket", "Pocket008")
body.addObject(pocket9)
pocket9.Profile = sketch15
pocket9.Type = "ThroughAll"
doc.recompute()

fillet2 = doc.addObject("PartDesign::Fillet", "Fillet001")
body.addObject(fillet2)
fillet2.Base = (pocket9, edges_at(pocket9, [(-23.5, 82, -50)]))
fillet2.Radius = 2

doc.recompute()
